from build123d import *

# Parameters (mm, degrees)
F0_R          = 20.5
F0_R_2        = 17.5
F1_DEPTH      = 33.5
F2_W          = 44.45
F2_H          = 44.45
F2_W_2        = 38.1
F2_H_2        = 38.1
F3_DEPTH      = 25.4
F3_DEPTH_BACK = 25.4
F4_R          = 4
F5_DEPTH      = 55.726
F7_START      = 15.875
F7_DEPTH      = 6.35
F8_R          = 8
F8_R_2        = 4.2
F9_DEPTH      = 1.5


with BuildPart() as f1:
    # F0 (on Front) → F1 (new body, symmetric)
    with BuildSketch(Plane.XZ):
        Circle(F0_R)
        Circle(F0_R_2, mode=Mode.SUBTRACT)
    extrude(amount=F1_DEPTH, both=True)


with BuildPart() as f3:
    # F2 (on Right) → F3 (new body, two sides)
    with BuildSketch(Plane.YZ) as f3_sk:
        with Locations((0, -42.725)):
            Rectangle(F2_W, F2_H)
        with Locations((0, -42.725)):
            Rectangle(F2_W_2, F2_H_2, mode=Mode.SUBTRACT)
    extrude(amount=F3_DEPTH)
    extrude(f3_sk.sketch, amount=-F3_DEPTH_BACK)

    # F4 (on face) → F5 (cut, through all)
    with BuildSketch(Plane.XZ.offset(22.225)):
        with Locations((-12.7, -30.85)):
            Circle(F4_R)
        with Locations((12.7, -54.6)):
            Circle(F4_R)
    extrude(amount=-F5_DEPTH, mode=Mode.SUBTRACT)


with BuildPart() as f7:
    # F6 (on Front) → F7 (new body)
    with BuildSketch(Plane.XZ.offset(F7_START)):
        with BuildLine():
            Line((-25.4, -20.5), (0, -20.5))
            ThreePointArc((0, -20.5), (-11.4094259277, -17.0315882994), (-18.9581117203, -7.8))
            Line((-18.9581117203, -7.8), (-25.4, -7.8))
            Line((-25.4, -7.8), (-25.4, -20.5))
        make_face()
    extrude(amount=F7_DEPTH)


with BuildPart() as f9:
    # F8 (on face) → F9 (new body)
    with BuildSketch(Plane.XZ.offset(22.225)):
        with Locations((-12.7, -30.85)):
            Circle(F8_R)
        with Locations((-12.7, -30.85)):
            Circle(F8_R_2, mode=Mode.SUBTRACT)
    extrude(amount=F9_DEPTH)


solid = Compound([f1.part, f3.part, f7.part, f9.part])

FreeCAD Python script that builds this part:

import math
import FreeCAD as App
import Part
import Sketcher
from FreeCAD import Vector
Q = App.Units.Quantity


def add_polygon(sketch, points):
    """Adds a closed chain of lines whose ends are joined by coincident constraints."""
    first, n = sketch.GeometryCount, len(points)
    for a, b in zip(points, points[1:] + points[:1]):
        sketch.addGeometry(Part.LineSegment(App.Vector(*a, 0), App.Vector(*b, 0)), False)
    for i in range(n):
        sketch.addConstraint(Sketcher.Constraint("Coincident", first + i, 2, first + (i + 1) % n, 1))

doc = App.newDocument("Part")
body = doc.addObject("PartDesign::Body", "Body")

sketch1 = doc.addObject("Sketcher::SketchObject", "Sketch")
body.addObject(sketch1)
sketch1.AttachmentSupport = (doc.XZ_Plane, [""])
sketch1.MapMode = "FlatFace"
sketch1.addGeometry(Part.Circle(Vector(0, 0, 0), Vector(0, 0, 1), 20), False)
sketch1.addGeometry(Part.Circle(Vector(0, 0, 0), Vector(0, 0, 1), 18), False)
sketch1.addConstraint(Sketcher.Constraint("Coincident", 0, 3, -1, 1))
sketch1.addConstraint(Sketcher.Constraint("Coincident", 1, 3, -1, 1))
sketch1.addConstraint(Sketcher.Constraint("Diameter", 0, Q("41 mm")))
sketch1.addConstraint(Sketcher.Constraint("Diameter", 1, Q("35 mm")))
pad1 = doc.addObject("PartDesign::Pad", "Pad")
body.addObject(pad1)
pad1.Profile = sketch1
pad1.Length = 67
pad1.Midplane = True
body2 = doc.addObject("PartDesign::Body", "Body001")

sketch2 = doc.addObject("Sketcher::SketchObject", "Sketch001")
body2.addObject(sketch2)
sketch2.AttachmentSupport = (doc.getObject("YZ_Plane001"), [""])
sketch2.MapMode = "FlatFace"
add_polygon(sketch2, [(-22, -20), (-22, -65), (22, -65), (22, -20)])
add_polygon(sketch2, [(19, -62), (-19, -62), (-19, -24), (19, -24)])
sketch2.addConstraint(Sketcher.Constraint("Vertical", 0))
sketch2.addConstraint(Sketcher.Constraint("Horizontal", 1))
sketch2.addConstraint(Sketcher.Constraint("Vertical", 2))
sketch2.addConstraint(Sketcher.Constraint("Horizontal", 3))
sketch2.addConstraint(Sketcher.Constraint("Horizontal", 4))
sketch2.addConstraint(Sketcher.Constraint("Vertical", 5))
sketch2.addConstraint(Sketcher.Constraint("Horizontal", 6))
sketch2.addConstraint(Sketcher.Constraint("Vertical", 7))
sketch2.addConstraint(Sketcher.Constraint("Equal", 3, 0))
sketch2.addConstraint(Sketcher.Constraint("Equal", 6, 5))
sketch2.addConstraint(Sketcher.Constraint("DistanceX", 4, 2, 4, 1, Q("38.1 mm")))
sketch2.addConstraint(Sketcher.Constraint("DistanceX", 1, 1, 1, 2, Q("44.45 mm")))
sketch2.addConstraint(Sketcher.Constraint("DistanceY", 2, 2, -1, 1, Q("20.5 mm")))
sketch2.addConstraint(Sketcher.Constraint("DistanceX", 4, 2, -1, 1, Q("19.05 mm")))
sketch2.addConstraint(Sketcher.Constraint("DistanceX", 0, 2, -1, 1, Q("22.225 mm")))
sketch2.addConstraint(Sketcher.Constraint("DistanceY", 4, 2, -1, 1, Q("61.775 mm")))
pad2 = doc.addObject("PartDesign::Pad", "Pad001")
body2.addObject(pad2)
pad2.Profile = sketch2
pad2.Type = "TwoLengths"
pad2.Length = 25.4
pad2.Length2 = 25.4

sketch3 = doc.addObject("Sketcher::SketchObject", "Sketch002")
body2.addObject(sketch3)
sketch3.AttachmentSupport = (doc.getObject("XZ_Plane001"), [""])
sketch3.MapMode = "FlatFace"
sketch3.AttachmentOffset = App.Placement(Vector(0, 0, 22.225), App.Rotation())
sketch3.addGeometry(Part.Circle(Vector(-12.7, -30.9, 0), Vector(0, 0, 1), 4), False)
sketch3.addGeometry(Part.Circle(Vector(12.7, -54.6, 0), Vector(0, 0, 1), 4), False)
sketch3.addConstraint(Sketcher.Constraint("Equal", 0, 1))
sketch3.addConstraint(Sketcher.Constraint("Diameter", 0, Q("8 mm")))
sketch3.addConstraint(Sketcher.Constraint("DistanceX", 0, 3, -1, 1, Q("12.7 mm")))
sketch3.addConstraint(Sketcher.Constraint("DistanceX", -1, 1, 1, 3, Q("12.7 mm")))
sketch3.addConstraint(Sketcher.Constraint("DistanceY", 1, 3, -1, 1, Q("54.6 mm")))
sketch3.addConstraint(Sketcher.Constraint("DistanceY", 0, 3, -1, 1, Q("30.85 mm")))
pocket1 = doc.addObject("PartDesign::Pocket", "Pocket")
body2.addObject(pocket1)
pocket1.Profile = sketch3
pocket1.Type = "ThroughAll"
body3 = doc.addObject("PartDesign::Body", "Body002")

sketch4 = doc.addObject("Sketcher::SketchObject", "Sketch003")
body3.addObject(sketch4)
sketch4.AttachmentSupport = (doc.getObject("XZ_Plane002"), [""])
sketch4.MapMode = "FlatFace"
sketch4.AttachmentOffset = App.Placement(Vector(0, 0, 15.875), App.Rotation())
sketch4.addGeometry(Part.LineSegment(Vector(-25, -20, 0), Vector(0, -20, 0)), False)
sketch4.addGeometry(Part.ArcOfCircle(Part.Circle(Vector(0, 0, 0), Vector(0, 0, 1), 20), math.radians(-158), math.radians(-90)), False)
sketch4.addGeometry(Part.LineSegment(Vector(-19, -8, 0), Vector(-25, -8, 0)), False)
sketch4.addGeometry(Part.LineSegment(Vector(-25, -8, 0), Vector(-25, -20, 0)), False)
sketch4.addConstraint(Sketcher.Constraint("Tangent", 0, 2, 1, 2))
sketch4.addConstraint(Sketcher.Constraint("Coincident", 1, 1, 2, 1))
sketch4.addConstraint(Sketcher.Constraint("Coincident", 2, 2, 3, 1))
sketch4.addConstraint(Sketcher.Constraint("Coincident", 3, 2, 0, 1))
sketch4.addConstraint(Sketcher.Constraint("Horizontal", 0))
sketch4.addConstraint(Sketcher.Constraint("Horizontal", 2))
sketch4.addConstraint(Sketcher.Constraint("Vertical", 3))
sketch4.addConstraint(Sketcher.Constraint("Coincident", 1, 3, -1, 1))
sketch4.addConstraint(Sketcher.Constraint("Radius", 1, Q("20.5 mm")))
sketch4.addConstraint(Sketcher.Constraint("DistanceX", 0, 1, 0, 2, Q("25.4 mm")))
sketch4.addConstraint(Sketcher.Constraint("DistanceY", 3, 2, 3, 1, Q("12.7 mm")))
pad3 = doc.addObject("PartDesign::Pad", "Pad002")
body3.addObject(pad3)
pad3.Profile = sketch4
pad3.Length = 6.35
body4 = doc.addObject("PartDesign::Body", "Body003")

sketch5 = doc.addObject("Sketcher::SketchObject", "Sketch004")
body4.addObject(sketch5)
sketch5.AttachmentSupport = (doc.getObject("XZ_Plane003"), [""])
sketch5.MapMode = "FlatFace"
sketch5.AttachmentOffset = App.Placement(Vector(0, 0, 22.225), App.Rotation())
sketch5.addGeometry(Part.Circle(Vector(-12.7, -30.9, 0), Vector(0, 0, 1), 8), False)
sketch5.addGeometry(Part.Circle(Vector(-12.7, -30.9, 0), Vector(0, 0, 1), 4.2), False)
sketch5.addConstraint(Sketcher.Constraint("Coincident", 1, 3, 0, 3))
sketch5.addConstraint(Sketcher.Constraint("Diameter", 0, Q("16 mm")))
sketch5.addConstraint(Sketcher.Constraint("Diameter", 1, Q("8.4 mm")))
sketch5.addConstraint(Sketcher.Constraint("DistanceX", 0, 3, -1, 1, Q("12.7 mm")))
sketch5.addConstraint(Sketcher.Constraint("DistanceY", 0, 3, -1, 1, Q("30.85 mm")))
pad4 = doc.addObject("PartDesign::Pad", "Pad003")
body4.addObject(pad4)
pad4.Profile = sketch5
pad4.Length = 1.5

doc.recompute()
